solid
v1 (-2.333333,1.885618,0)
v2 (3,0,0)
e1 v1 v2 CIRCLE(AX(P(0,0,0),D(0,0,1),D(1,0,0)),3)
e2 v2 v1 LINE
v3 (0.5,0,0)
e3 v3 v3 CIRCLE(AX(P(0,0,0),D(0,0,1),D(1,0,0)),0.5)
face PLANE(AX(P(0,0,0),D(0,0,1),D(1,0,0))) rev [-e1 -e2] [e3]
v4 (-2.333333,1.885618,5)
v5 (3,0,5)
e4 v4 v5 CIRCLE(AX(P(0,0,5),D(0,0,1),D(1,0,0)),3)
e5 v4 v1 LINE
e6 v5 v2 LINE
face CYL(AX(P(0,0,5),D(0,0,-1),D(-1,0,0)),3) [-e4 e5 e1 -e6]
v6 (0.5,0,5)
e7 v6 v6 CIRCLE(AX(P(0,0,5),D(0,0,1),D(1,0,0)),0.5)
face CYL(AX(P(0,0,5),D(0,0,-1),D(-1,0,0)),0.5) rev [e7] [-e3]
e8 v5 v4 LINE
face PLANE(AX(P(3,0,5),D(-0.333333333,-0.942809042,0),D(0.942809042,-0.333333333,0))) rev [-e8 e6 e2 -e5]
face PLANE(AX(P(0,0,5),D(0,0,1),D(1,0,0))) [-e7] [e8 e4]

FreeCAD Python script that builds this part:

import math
import FreeCAD as App
import Part
import Sketcher

V = App.Vector
Q = App.Units.Quantity

doc = App.newDocument("Part")
body = doc.addObject("PartDesign::Body", "Body")

# Sketch on XY plane
sketch1 = body.newObject("Sketcher::SketchObject", "Sketch")
sketch1.AttachmentSupport = (doc.getObject("XY_Plane"), [""])
sketch1.MapMode = "FlatFace"
sketch1.addGeometry(Part.LineSegment(V(3, 0, 0), V(-2.3, 1.9, 0)), False)
sketch1.addGeometry(Part.ArcOfCircle(Part.Circle(V(0, 0, 0), V(0, 0, 1), 3), math.radians(141), math.radians(360)), False)
sketch1.addGeometry(Part.Circle(V(0, 0, 0), V(0, 0, 1), 0.5), False)
sketch1.addConstraint(Sketcher.Constraint("Coincident", 0, 1, 1, 2))
sketch1.addConstraint(Sketcher.Constraint("Coincident", 1, 1, 0, 2))
sketch1.addConstraint(Sketcher.Constraint("Coincident", 1, 3, -1, 1))
sketch1.addConstraint(Sketcher.Constraint("Coincident", 2, 3, -1, 1))
sketch1.addConstraint(Sketcher.Constraint("PointOnObject", 0, 1, -1))
sketch1.addConstraint(Sketcher.Constraint("Diameter", 2, Q("1 mm")))
sketch1.addConstraint(Sketcher.Constraint("Radius", 1, Q("3 mm")))
sketch1.addConstraint(Sketcher.Constraint("DistanceY", -1, 1, 1, 1, Q("1.885618 mm")))
pad1 = body.newObject("PartDesign::Pad", "Pad")
pad1.Profile = sketch1
pad1.Length = 5

doc.recompute()
